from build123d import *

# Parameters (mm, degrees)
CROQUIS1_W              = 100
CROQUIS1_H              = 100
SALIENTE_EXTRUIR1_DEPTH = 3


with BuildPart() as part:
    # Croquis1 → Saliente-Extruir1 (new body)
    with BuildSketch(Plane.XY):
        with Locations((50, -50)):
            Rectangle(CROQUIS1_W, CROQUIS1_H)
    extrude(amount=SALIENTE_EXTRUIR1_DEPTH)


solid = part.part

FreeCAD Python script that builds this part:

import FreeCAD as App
import Part
import Sketcher
Q = App.Units.Quantity


def add_polygon(sketch, points):
    """Adds a closed chain of lines whose ends are joined by coincident constraints."""
    first, n = sketch.GeometryCount, len(points)
    for a, b in zip(points, points[1:] + points[:1]):
        sketch.addGeometry(Part.LineSegment(App.Vector(*a, 0), App.Vector(*b, 0)), False)
    for i in range(n):
        sketch.addConstraint(Sketcher.Constraint("Coincident", first + i, 2, first + (i + 1) % n, 1))

doc = App.newDocument("Part")
body = doc.addObject("PartDesign::Body", "Body")

# Sketch on XY plane
sketch1 = doc.addObject("Sketcher::SketchObject", "Sketch")
body.addObject(sketch1)
sketch1.AttachmentSupport = (doc.XY_Plane, [""])
sketch1.MapMode = "FlatFace"
add_polygon(sketch1, [(0, 0), (0, -100), (100, -100), (100, 0)])  # lines 0-3
sketch1.addConstraint([
    Sketcher.Constraint("Vertical", 0),
    Sketcher.Constraint("Horizontal", 1),
    Sketcher.Constraint("Vertical", 2),
    Sketcher.Constraint("Horizontal", 3),
    Sketcher.Constraint("Coincident", 3, 2, -1, 1),
    Sketcher.Constraint("Equal", 3, 0),
    Sketcher.Constraint("DistanceX", 1, 1, 1, 2, Q("100 mm")),
])
pad1 = doc.addObject("PartDesign::Pad", "Pad")
body.addObject(pad1)
pad1.Profile = sketch1
pad1.Length = 3

doc.recompute()
